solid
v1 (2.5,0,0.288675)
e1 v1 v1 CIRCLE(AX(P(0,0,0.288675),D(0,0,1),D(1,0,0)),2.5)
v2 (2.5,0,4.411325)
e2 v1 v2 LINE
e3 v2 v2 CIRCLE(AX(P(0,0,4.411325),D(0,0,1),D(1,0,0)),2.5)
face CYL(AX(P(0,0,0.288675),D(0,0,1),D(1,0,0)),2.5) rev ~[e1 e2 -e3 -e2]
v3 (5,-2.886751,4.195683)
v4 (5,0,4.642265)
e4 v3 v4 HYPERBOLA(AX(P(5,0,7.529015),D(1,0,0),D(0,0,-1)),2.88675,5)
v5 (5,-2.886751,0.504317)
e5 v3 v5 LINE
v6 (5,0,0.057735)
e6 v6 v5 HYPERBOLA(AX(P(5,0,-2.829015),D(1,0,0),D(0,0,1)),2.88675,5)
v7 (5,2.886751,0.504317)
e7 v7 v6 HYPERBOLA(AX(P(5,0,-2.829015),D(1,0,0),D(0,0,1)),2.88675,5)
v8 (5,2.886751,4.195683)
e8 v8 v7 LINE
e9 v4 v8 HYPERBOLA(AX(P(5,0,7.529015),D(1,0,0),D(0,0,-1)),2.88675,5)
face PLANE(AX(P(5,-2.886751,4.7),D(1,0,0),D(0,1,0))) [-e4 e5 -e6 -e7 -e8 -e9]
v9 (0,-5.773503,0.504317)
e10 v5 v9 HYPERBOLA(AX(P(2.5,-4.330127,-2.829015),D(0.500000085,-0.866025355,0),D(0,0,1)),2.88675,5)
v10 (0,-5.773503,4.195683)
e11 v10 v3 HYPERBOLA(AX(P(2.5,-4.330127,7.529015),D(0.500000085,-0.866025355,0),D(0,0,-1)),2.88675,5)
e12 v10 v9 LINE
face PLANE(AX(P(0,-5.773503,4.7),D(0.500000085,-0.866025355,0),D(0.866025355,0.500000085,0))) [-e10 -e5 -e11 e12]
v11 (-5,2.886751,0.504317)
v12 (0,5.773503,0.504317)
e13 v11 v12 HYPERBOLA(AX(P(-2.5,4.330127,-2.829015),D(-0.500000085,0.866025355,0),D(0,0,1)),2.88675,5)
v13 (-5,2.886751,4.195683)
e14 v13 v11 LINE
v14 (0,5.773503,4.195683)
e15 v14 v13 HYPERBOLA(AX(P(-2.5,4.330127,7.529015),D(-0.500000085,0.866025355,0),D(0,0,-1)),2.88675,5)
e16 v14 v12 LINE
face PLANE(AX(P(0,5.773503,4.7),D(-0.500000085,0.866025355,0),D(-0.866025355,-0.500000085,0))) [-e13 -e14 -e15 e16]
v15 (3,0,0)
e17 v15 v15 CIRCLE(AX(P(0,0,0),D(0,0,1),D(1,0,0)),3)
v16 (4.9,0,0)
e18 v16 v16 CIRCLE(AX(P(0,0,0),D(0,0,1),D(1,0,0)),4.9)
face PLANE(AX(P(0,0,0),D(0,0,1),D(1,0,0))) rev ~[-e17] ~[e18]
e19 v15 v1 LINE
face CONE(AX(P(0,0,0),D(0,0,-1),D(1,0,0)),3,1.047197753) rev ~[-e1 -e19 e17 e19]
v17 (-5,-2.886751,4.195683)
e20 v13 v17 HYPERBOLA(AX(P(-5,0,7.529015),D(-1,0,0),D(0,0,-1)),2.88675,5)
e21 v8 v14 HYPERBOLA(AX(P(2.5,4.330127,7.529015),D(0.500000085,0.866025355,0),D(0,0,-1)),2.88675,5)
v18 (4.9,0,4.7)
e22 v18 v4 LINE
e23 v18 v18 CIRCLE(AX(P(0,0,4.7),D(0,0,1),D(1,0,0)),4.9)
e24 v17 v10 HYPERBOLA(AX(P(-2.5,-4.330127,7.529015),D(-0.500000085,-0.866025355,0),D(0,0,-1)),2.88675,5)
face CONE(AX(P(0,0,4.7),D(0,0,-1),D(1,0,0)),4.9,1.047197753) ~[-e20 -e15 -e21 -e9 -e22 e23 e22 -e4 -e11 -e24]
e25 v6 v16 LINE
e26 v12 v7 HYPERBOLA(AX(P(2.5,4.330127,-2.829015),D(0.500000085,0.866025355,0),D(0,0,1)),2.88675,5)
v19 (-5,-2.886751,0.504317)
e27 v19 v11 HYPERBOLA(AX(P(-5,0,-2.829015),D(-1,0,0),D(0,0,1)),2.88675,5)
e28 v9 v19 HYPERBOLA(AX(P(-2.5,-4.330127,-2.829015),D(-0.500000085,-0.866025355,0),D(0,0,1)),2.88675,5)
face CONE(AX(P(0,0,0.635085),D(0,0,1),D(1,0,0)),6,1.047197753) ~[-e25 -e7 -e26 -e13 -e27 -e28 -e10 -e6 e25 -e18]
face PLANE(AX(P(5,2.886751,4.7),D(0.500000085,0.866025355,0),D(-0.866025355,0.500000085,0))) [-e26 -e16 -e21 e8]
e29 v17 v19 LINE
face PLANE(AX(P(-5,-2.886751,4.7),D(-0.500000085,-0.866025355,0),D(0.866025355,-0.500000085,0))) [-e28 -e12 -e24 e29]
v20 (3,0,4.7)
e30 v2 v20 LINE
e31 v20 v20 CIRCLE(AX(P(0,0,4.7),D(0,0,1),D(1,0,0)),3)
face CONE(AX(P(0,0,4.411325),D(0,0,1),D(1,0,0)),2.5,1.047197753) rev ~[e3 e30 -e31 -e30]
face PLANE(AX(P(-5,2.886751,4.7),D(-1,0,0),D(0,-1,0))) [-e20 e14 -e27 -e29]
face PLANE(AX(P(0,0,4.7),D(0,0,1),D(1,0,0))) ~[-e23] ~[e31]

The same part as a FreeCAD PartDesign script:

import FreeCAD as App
import Part
import Sketcher

V = App.Vector
Q = App.Units.Quantity

doc = App.newDocument("Part")
body = doc.addObject("PartDesign::Body", "Body")

# Sketch on XZ plane
sketch1 = doc.addObject("Sketcher::SketchObject", "Sketch")
body.addObject(sketch1)
sketch1.AttachmentSupport = (doc.XZ_Plane, [""])
sketch1.MapMode = "FlatFace"
sketch1.addGeometry(Part.LineSegment(V(2.5, 0.288675, 0), V(3, 0, 0)), False)
sketch1.addGeometry(Part.LineSegment(V(3, 0, 0), V(4.9, 0, 0)), False)
sketch1.addGeometry(Part.LineSegment(V(4.9, 0, 0), V(6, 0.635085, 0)), False)
sketch1.addGeometry(Part.LineSegment(V(6, 0.635085, 0), V(6, 4.064915, 0)), False)
sketch1.addGeometry(Part.LineSegment(V(6, 4.064915, 0), V(4.9, 4.7, 0)), False)
sketch1.addGeometry(Part.LineSegment(V(4.9, 4.7, 0), V(3, 4.7, 0)), False)
sketch1.addGeometry(Part.LineSegment(V(3, 4.7, 0), V(2.5, 4.411325, 0)), False)
sketch1.addGeometry(Part.LineSegment(V(2.5, 4.411325, 0), V(2.5, 0.288675, 0)), False)
sketch1.addConstraint(Sketcher.Constraint("Coincident", 0, 2, 1, 1))
sketch1.addConstraint(Sketcher.Constraint("Coincident", 1, 2, 2, 1))
sketch1.addConstraint(Sketcher.Constraint("Coincident", 2, 2, 3, 1))
sketch1.addConstraint(Sketcher.Constraint("Coincident", 3, 2, 4, 1))
sketch1.addConstraint(Sketcher.Constraint("Coincident", 4, 2, 5, 1))
sketch1.addConstraint(Sketcher.Constraint("Coincident", 5, 2, 6, 1))
sketch1.addConstraint(Sketcher.Constraint("Coincident", 6, 2, 7, 1))
sketch1.addConstraint(Sketcher.Constraint("Coincident", 7, 2, 0, 1))
sketch1.addConstraint(Sketcher.Constraint("Horizontal", 1))
sketch1.addConstraint(Sketcher.Constraint("Vertical", 3))
sketch1.addConstraint(Sketcher.Constraint("Horizontal", 5))
sketch1.addConstraint(Sketcher.Constraint("Vertical", 7))
sketch1.addConstraint(Sketcher.Constraint("PointOnObject", 0, 2, -1))
sketch1.addConstraint(Sketcher.Constraint("Parallel", 0, 4))
sketch1.addConstraint(Sketcher.Constraint("Parallel", 2, 6))
sketch1.addConstraint(Sketcher.Constraint("Vertical", 1, 2, 4, 2))
sketch1.addConstraint(Sketcher.Constraint("Vertical", 0, 2, 5, 2))
sketch1.addConstraint(Sketcher.Constraint("Equal", 2, 4))
sketch1.addConstraint(Sketcher.Constraint("Angle", 0, Q("-29.999988 deg")))
sketch1.addConstraint(Sketcher.Constraint("DistanceX", 1, 1, 1, 2, 1.9))
sketch1.addConstraint(Sketcher.Constraint("DistanceX", -1, 1, 0, 2, 3.0))
sketch1.addConstraint(Sketcher.Constraint("DistanceX", -1, 1, 2, 2, 6.0))
sketch1.addConstraint(Sketcher.Constraint("DistanceY", -1, 1, 4, 2, 4.7))
sketch1.addConstraint(Sketcher.Constraint("DistanceX", -1, 1, 6, 2, 2.5))
revolution = doc.addObject("PartDesign::Revolution", "Revolution")
body.addObject(revolution)
revolution.Profile = sketch1
revolution.ReferenceAxis = (sketch1, ["V_Axis"])
revolution.Angle = 360

# Sketch on XY plane
sketch2 = doc.addObject("Sketcher::SketchObject", "Sketch001")
body.addObject(sketch2)
sketch2.AttachmentSupport = (doc.XY_Plane, [""])
sketch2.MapMode = "FlatFace"
sketch2.AttachmentOffset = App.Placement(V(0, 0, 4.7), App.Rotation())
sketch2.addGeometry(Part.Circle(V(0, 0, 0), V(0, 0, 1), 7), False)
sketch2.addGeometry(Part.LineSegment(V(5, 2.886751, 0), V(5, -2.886751, 0)), False)
sketch2.addGeometry(Part.LineSegment(V(5, -2.886751, 0), V(0, -5.773503, 0)), False)
sketch2.addGeometry(Part.LineSegment(V(0, -5.773503, 0), V(-5, -2.886751, 0)), False)
sketch2.addGeometry(Part.LineSegment(V(-5, -2.886751, 0), V(-5, 2.886751, 0)), False)
sketch2.addGeometry(Part.LineSegment(V(-5, 2.886751, 0), V(0, 5.773503, 0)), False)
sketch2.addGeometry(Part.LineSegment(V(0, 5.773503, 0), V(5, 2.886751, 0)), False)
sketch2.addConstraint(Sketcher.Constraint("Coincident", 1, 2, 2, 1))
sketch2.addConstraint(Sketcher.Constraint("Coincident", 2, 2, 3, 1))
sketch2.addConstraint(Sketcher.Constraint("Coincident", 3, 2, 4, 1))
sketch2.addConstraint(Sketcher.Constraint("Coincident", 4, 2, 5, 1))
sketch2.addConstraint(Sketcher.Constraint("Coincident", 5, 2, 6, 1))
sketch2.addConstraint(Sketcher.Constraint("Coincident", 6, 2, 1, 1))
sketch2.addConstraint(Sketcher.Constraint("Vertical", 1))
sketch2.addConstraint(Sketcher.Constraint("Vertical", 4))
sketch2.addConstraint(Sketcher.Constraint("Coincident", 0, 3, -1, 1))
sketch2.addConstraint(Sketcher.Constraint("Symmetric", 1, 2, 4, 2, -1, 1))
sketch2.addConstraint(Sketcher.Constraint("Symmetric", 2, 2, 5, 2, -1, 1))
sketch2.addConstraint(Sketcher.Constraint("PointOnObject", 2, 2, -2))
sketch2.addConstraint(Sketcher.Constraint("Parallel", 3, 6))
sketch2.addConstraint(Sketcher.Constraint("Horizontal", 1, 2, 3, 2))
sketch2.addConstraint(Sketcher.Constraint("Diameter", 0, 14.0))
sketch2.addConstraint(Sketcher.Constraint("Angle", 2, Q("-149.999994 deg")))
sketch2.addConstraint(Sketcher.Constraint("DistanceX", -1, 1, 1, 2, 5.0))
sketch2.addConstraint(Sketcher.Constraint("DistanceY", 1, 2, 1, 1, 5.773502))
pocket1 = doc.addObject("PartDesign::Pocket", "Pocket")
body.addObject(pocket1)
pocket1.Profile = sketch2
pocket1.Length = 4.7

doc.recompute()
